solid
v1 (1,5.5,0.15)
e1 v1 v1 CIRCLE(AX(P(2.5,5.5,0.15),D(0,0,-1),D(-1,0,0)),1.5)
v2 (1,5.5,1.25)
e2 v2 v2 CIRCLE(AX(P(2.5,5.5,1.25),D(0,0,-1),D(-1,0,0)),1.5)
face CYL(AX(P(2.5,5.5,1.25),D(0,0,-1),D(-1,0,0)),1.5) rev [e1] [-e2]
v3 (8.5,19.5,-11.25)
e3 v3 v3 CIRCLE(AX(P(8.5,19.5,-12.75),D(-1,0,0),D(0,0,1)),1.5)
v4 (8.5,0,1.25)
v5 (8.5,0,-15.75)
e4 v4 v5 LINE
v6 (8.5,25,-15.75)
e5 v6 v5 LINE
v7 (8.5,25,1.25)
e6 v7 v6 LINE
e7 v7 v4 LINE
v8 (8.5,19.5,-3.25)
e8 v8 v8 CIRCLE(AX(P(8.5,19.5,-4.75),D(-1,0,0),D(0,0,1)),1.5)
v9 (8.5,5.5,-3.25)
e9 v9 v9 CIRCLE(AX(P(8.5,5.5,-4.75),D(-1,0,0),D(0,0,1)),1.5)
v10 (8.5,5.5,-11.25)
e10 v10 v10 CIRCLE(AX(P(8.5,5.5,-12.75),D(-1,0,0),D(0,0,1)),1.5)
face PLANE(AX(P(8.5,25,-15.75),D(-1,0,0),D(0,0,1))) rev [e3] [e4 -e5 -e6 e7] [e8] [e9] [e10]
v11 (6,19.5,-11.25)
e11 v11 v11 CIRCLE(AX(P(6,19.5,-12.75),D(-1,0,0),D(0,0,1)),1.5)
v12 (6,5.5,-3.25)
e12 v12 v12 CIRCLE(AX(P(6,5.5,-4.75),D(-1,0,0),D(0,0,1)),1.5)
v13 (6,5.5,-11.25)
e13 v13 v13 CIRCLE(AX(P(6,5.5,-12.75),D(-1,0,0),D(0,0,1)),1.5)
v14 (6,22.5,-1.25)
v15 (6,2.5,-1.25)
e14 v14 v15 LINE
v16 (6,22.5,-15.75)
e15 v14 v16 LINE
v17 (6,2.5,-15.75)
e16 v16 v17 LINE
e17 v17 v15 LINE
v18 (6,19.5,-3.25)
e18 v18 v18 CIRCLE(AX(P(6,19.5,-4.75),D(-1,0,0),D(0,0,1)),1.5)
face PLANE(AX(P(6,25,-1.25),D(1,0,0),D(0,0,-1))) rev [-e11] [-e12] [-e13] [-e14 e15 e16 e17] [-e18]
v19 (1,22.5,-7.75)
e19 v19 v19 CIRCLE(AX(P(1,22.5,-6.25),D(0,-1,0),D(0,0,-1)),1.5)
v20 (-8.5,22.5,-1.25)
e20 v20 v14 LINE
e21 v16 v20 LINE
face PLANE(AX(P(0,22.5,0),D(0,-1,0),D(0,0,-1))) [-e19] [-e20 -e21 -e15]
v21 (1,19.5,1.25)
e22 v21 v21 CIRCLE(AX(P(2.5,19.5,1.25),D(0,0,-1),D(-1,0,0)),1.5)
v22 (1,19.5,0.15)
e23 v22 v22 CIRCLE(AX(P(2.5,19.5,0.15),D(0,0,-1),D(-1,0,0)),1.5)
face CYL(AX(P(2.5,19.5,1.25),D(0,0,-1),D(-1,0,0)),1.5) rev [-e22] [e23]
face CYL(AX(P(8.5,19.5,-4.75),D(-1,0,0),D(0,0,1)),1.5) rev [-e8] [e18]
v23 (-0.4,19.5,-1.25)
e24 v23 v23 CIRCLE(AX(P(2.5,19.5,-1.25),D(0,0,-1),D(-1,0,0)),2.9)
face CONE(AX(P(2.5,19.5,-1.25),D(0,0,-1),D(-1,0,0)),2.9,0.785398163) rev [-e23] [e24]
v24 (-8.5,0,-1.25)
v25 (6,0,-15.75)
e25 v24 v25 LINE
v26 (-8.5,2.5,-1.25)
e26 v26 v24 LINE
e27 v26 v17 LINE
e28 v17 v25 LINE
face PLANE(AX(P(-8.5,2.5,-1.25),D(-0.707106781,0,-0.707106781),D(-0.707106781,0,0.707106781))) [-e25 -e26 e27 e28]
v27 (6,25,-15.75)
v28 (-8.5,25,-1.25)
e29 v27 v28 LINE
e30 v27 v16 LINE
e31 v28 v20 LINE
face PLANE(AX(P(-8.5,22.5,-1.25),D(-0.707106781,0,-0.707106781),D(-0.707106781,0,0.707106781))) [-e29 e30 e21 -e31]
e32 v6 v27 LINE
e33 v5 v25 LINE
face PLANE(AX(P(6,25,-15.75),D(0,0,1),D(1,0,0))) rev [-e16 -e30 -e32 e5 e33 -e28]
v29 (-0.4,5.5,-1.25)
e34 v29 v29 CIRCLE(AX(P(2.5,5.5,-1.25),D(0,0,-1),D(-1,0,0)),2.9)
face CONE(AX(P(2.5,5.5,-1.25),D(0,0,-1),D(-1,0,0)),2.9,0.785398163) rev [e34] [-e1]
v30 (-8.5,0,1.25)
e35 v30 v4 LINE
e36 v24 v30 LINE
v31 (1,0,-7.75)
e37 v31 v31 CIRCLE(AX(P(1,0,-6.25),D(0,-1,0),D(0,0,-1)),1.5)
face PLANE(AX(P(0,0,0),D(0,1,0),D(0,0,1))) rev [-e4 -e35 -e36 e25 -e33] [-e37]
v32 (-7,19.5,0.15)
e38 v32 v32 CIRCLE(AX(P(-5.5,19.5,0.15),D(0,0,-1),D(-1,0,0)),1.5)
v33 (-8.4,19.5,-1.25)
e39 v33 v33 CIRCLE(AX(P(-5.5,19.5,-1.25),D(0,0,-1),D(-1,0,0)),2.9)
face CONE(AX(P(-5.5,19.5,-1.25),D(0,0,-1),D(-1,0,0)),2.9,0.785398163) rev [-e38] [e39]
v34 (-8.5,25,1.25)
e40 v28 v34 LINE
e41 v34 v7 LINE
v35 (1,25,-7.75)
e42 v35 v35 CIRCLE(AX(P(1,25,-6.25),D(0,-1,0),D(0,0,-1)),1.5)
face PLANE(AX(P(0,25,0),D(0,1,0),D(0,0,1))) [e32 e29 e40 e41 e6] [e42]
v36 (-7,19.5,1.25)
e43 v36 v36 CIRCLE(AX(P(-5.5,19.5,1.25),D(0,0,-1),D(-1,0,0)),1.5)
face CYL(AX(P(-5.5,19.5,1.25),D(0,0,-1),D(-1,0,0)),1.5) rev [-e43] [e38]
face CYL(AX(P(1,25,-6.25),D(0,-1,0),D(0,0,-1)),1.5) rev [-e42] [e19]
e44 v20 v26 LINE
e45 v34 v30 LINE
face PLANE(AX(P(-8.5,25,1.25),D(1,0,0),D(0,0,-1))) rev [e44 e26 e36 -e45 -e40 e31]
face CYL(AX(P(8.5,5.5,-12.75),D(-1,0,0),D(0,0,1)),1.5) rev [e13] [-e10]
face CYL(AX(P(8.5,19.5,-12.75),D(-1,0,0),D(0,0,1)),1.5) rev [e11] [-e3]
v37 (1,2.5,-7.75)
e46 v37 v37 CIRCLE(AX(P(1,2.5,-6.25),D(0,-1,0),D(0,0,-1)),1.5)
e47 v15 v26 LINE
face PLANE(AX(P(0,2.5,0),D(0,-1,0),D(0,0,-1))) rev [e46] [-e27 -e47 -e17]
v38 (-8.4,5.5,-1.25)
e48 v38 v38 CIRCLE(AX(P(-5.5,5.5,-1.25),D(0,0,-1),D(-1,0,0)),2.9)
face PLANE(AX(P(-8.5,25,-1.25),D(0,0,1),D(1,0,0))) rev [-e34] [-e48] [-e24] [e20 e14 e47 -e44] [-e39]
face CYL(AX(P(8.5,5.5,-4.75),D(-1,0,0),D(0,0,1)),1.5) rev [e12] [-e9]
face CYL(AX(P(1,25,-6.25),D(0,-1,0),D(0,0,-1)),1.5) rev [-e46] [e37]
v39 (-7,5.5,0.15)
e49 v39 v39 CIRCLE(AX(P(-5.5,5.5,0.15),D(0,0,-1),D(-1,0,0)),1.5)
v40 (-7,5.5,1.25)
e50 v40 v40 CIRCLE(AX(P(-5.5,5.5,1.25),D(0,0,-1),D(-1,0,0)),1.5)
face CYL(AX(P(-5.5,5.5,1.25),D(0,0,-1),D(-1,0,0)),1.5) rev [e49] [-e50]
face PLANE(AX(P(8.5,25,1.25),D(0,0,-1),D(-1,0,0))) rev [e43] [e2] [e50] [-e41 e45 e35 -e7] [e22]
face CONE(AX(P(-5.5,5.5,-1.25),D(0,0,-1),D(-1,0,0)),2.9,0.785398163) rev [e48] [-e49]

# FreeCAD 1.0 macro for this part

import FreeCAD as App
import Part
import Sketcher
Q = App.Units.Quantity

doc = App.newDocument("Part")
body = doc.addObject("PartDesign::Body", "Body")

sketch1 = body.newObject("Sketcher::SketchObject", "Sketch")
sketch1.AttachmentSupport = (doc.getObject("XZ_Plane"), [""])
sketch1.MapMode = "FlatFace"
sketch1.addGeometry([
    Part.LineSegment(App.Vector(6, -15.8, 0), App.Vector(6, -1.2, 0)),
    Part.LineSegment(App.Vector(6, -1.2, 0), App.Vector(-8.5, -1.2, 0)),
    Part.LineSegment(App.Vector(-8.5, -1.2, 0), App.Vector(-8.5, 1.2, 0)),
    Part.LineSegment(App.Vector(-8.5, 1.2, 0), App.Vector(8.5, 1.2, 0)),
    Part.LineSegment(App.Vector(8.5, 1.2, 0), App.Vector(8.5, -15.8, 0)),
    Part.LineSegment(App.Vector(8.5, -15.8, 0), App.Vector(6, -15.8, 0)),
], False)
sketch1.addConstraint([
    Sketcher.Constraint("Coincident", 0, 2, 1, 1),
    Sketcher.Constraint("Coincident", 1, 2, 2, 1),
    Sketcher.Constraint("Coincident", 2, 2, 3, 1),
    Sketcher.Constraint("Coincident", 3, 2, 4, 1),
    Sketcher.Constraint("Coincident", 4, 2, 5, 1),
    Sketcher.Constraint("Coincident", 5, 2, 0, 1),
    Sketcher.Constraint("Vertical", 0),
    Sketcher.Constraint("Horizontal", 1),
    Sketcher.Constraint("Vertical", 2),
    Sketcher.Constraint("Horizontal", 3),
    Sketcher.Constraint("Vertical", 4),
    Sketcher.Constraint("Horizontal", 5),
    Sketcher.Constraint("Symmetric", 1, 2, 3, 2, -1, 1),
    Sketcher.Constraint("Equal", 1, 0),
    Sketcher.Constraint("Equal", 5, 2),
    Sketcher.Constraint("DistanceX", 3, 1, 3, 2, Q("17 mm")),
    Sketcher.Constraint("DistanceX", 1, 2, 1, 1, Q("14.5 mm")),
])
pad1 = body.newObject("PartDesign::Pad", "Pad")
pad1.Profile = sketch1
pad1.Length = 25
pad1.Reversed = True

sketch2 = body.newObject("Sketcher::SketchObject", "Sketch001")
sketch2.AttachmentSupport = (doc.getObject("XZ_Plane"), [""])
sketch2.MapMode = "FlatFace"
sketch2.addGeometry([
    Part.LineSegment(App.Vector(6, -16, 0), App.Vector(6, -1, 0)),
    Part.LineSegment(App.Vector(6, -1, 0), App.Vector(-8, -1, 0)),
    Part.LineSegment(App.Vector(-8, -1, 0), App.Vector(6, -16, 0)),
], False)
sketch2.addConstraint([
    Sketcher.Constraint("Coincident", 0, 2, 1, 1),
    Sketcher.Constraint("Coincident", 1, 2, 2, 1),
    Sketcher.Constraint("Coincident", 2, 2, 0, 1),
    Sketcher.Constraint("Vertical", 0),
    Sketcher.Constraint("Horizontal", 1),
    Sketcher.Constraint("Equal", 1, 0),
    Sketcher.Constraint("DistanceX", 1, 2, 1, 1, Q("14.5 mm")),
    Sketcher.Constraint("DistanceX", -1, 1, 0, 2, Q("6 mm")),
    Sketcher.Constraint("DistanceY", 0, 2, -1, 1, Q("1.25 mm")),
])
pad2 = body.newObject("PartDesign::Pad", "Pad001")
pad2.Profile = sketch2
pad2.Length = 2.5
pad2.Reversed = True

sketch3 = body.newObject("Sketcher::SketchObject", "Sketch002")
sketch3.AttachmentSupport = (doc.getObject("XZ_Plane"), [""])
sketch3.MapMode = "FlatFace"
sketch3.AttachmentOffset = App.Placement(App.Vector(0, 0, -25), App.Rotation())
sketch3.addGeometry([
    Part.LineSegment(App.Vector(6, -1, 0), App.Vector(6, -16, 0)),
    Part.LineSegment(App.Vector(6, -16, 0), App.Vector(-8, -1, 0)),
    Part.LineSegment(App.Vector(-8, -1, 0), App.Vector(6, -1, 0)),
], False)
sketch3.addConstraint([
    Sketcher.Constraint("Coincident", 0, 2, 1, 1),
    Sketcher.Constraint("Coincident", 1, 2, 2, 1),
    Sketcher.Constraint("Coincident", 2, 2, 0, 1),
    Sketcher.Constraint("Vertical", 0),
    Sketcher.Constraint("Horizontal", 2),
    Sketcher.Constraint("Equal", 2, 0),
    Sketcher.Constraint("DistanceX", 2, 1, 2, 2, Q("14.5 mm")),
    Sketcher.Constraint("DistanceX", -1, 1, 0, 2, Q("6 mm")),
    Sketcher.Constraint("DistanceY", 0, 2, -1, 1, Q("15.75 mm")),
])
pad3 = body.newObject("PartDesign::Pad", "Pad002")
pad3.Profile = sketch3
pad3.Length = 2.5

sketch4 = body.newObject("Sketcher::SketchObject", "Sketch003")
sketch4.AttachmentSupport = (doc.getObject("XY_Plane"), [""])
sketch4.MapMode = "FlatFace"
sketch4.AttachmentOffset = App.Placement(App.Vector(0, 0, -1.25), App.Rotation())
sketch4.addGeometry([
    Part.Circle(App.Vector(2.5, 19.5, 0), App.Vector(0, 0, 1), 1.5),
    Part.Circle(App.Vector(-5.5, 19.5, 0), App.Vector(0, 0, 1), 1.5),
    Part.Circle(App.Vector(-5.5, 5.5, 0), App.Vector(0, 0, 1), 1.5),
    Part.Circle(App.Vector(2.5, 5.5, 0), App.Vector(0, 0, 1), 1.5),
], False)
sketch4.addConstraint([
    Sketcher.Constraint("Equal", 0, 1),
    Sketcher.Constraint("Equal", 1, 2),
    Sketcher.Constraint("Equal", 2, 3),
    Sketcher.Constraint("Horizontal", 0, 3, 1, 3),
    Sketcher.Constraint("Horizontal", 2, 3, 3, 3),
    Sketcher.Constraint("Vertical", 1, 3, 2, 3),
    Sketcher.Constraint("Vertical", 0, 3, 3, 3),
    Sketcher.Constraint("Diameter", 0, Q("3 mm")),
    Sketcher.Constraint("DistanceX", 1, 3, 0, 3, Q("8 mm")),
    Sketcher.Constraint("DistanceY", 2, 3, 1, 3, Q("14 mm")),
    Sketcher.Constraint("DistanceX", -1, 1, 0, 3, Q("2.5 mm")),
    Sketcher.Constraint("DistanceY", -1, 1, 0, 3, Q("19.5 mm")),
])
pocket1 = body.newObject("PartDesign::Pocket", "Pocket")
pocket1.Profile = sketch4
pocket1.Type = "ThroughAll"
pocket1.Reversed = True

sketch5 = body.newObject("Sketcher::SketchObject", "Sketch004")
sketch5.AttachmentSupport = (doc.getObject("YZ_Plane"), [""])
sketch5.MapMode = "FlatFace"
sketch5.AttachmentOffset = App.Placement(App.Vector(0, 0, 6), App.Rotation())
sketch5.addGeometry([
    Part.Circle(App.Vector(19.5, -12.8, 0), App.Vector(0, 0, 1), 1.5),
    Part.Circle(App.Vector(5.5, -12.8, 0), App.Vector(0, 0, 1), 1.5),
    Part.Circle(App.Vector(19.5, -4.8, 0), App.Vector(0, 0, 1), 1.5),
    Part.Circle(App.Vector(5.5, -4.8, 0), App.Vector(0, 0, 1), 1.5),
], False)
sketch5.addConstraint([
    Sketcher.Constraint("Equal", 0, 1),
    Sketcher.Constraint("Equal", 1, 2),
    Sketcher.Constraint("Equal", 2, 3),
    Sketcher.Constraint("Horizontal", 0, 3, 1, 3),
    Sketcher.Constraint("Horizontal", 2, 3, 3, 3),
    Sketcher.Constraint("Vertical", 0, 3, 2, 3),
    Sketcher.Constraint("Vertical", 1, 3, 3, 3),
    Sketcher.Constraint("Diameter", 0, Q("3 mm")),
    Sketcher.Constraint("DistanceX", 1, 3, 0, 3, Q("14 mm")),
    Sketcher.Constraint("DistanceY", 0, 3, 2, 3, Q("8 mm")),
    Sketcher.Constraint("DistanceX", -1, 1, 0, 3, Q("19.5 mm")),
    Sketcher.Constraint("DistanceY", 0, 3, -1, 1, Q("12.75 mm")),
])
pocket2 = body.newObject("PartDesign::Pocket", "Pocket001")
pocket2.Profile = sketch5
pocket2.Type = "ThroughAll"
pocket2.Reversed = True

sketch6 = body.newObject("Sketcher::SketchObject", "Sketch005")
sketch6.AttachmentSupport = (doc.getObject("XZ_Plane"), [""])
sketch6.MapMode = "FlatFace"
sketch6.addGeometry(Part.Circle(App.Vector(1, -6.2, 0), App.Vector(0, 0, 1), 1.5), False)
sketch6.addConstraint([
    Sketcher.Constraint("Diameter", 0, Q("3 mm")),
    Sketcher.Constraint("DistanceX", -1, 1, 0, 3, Q("1 mm")),
    Sketcher.Constraint("DistanceY", 0, 3, -1, 1, Q("6.25 mm")),
])
pocket3 = body.newObject("PartDesign::Pocket", "Pocket002")
pocket3.Profile = sketch6
pocket3.Type = "ThroughAll"

sketch7 = body.newObject("Sketcher::SketchObject", "Sketch006")
sketch7.AttachmentSupport = (doc.getObject("YZ_Plane"), [""])
sketch7.MapMode = "FlatFace"
sketch7.AttachmentOffset = App.Placement(App.Vector(0, 0, -5.5), App.Rotation())
sketch7.addGeometry([
    Part.LineSegment(App.Vector(5.5, 1.2, 0), App.Vector(5.5, -1.2, 0)),
    Part.LineSegment(App.Vector(5.5, -1.2, 0), App.Vector(8.4, -1.2, 0)),
    Part.LineSegment(App.Vector(8.4, -1.2, 0), App.Vector(7, 0.1, 0)),
    Part.LineSegment(App.Vector(7, 0.1, 0), App.Vector(7, 1.2, 0)),
    Part.LineSegment(App.Vector(7, 1.2, 0), App.Vector(5.5, 1.2, 0)),
], False)
sketch7.addGeometry(Part.LineSegment(App.Vector(5.5, -1.2, 0), App.Vector(5.5, 1.2, 0)), True)
sketch7.addConstraint([
    Sketcher.Constraint("Coincident", 0, 2, 1, 1),
    Sketcher.Constraint("Coincident", 1, 2, 2, 1),
    Sketcher.Constraint("Coincident", 2, 2, 3, 1),
    Sketcher.Constraint("Coincident", 3, 2, 4, 1),
    Sketcher.Constraint("Coincident", 4, 2, 0, 1),
    Sketcher.Constraint("Vertical", 0),
    Sketcher.Constraint("Horizontal", 1),
    Sketcher.Constraint("Vertical", 3),
    Sketcher.Constraint("Horizontal", 4),
    Sketcher.Constraint("Vertical", 5),
    Sketcher.Constraint("Coincident", 5, 1, 0, 2),
    Sketcher.Constraint("Horizontal", 3, 2, 5, 2),
    Sketcher.Constraint("Angle", 2, Q("135 deg")),
    Sketcher.Constraint("DistanceX", 1, 1, 1, 2, Q("2.9 mm")),
    Sketcher.Constraint("DistanceX", 4, 2, 4, 1, Q("1.5 mm")),
    Sketcher.Constraint("DistanceY", 0, 2, 0, 1, Q("2.5 mm")),
    Sketcher.Constraint("DistanceX", -1, 1, 2, 2, Q("7 mm")),
    Sketcher.Constraint("DistanceY", 0, 2, -1, 1, Q("1.25 mm")),
])
groove = body.newObject("PartDesign::Groove", "Groove")
groove.Profile = sketch7
groove.ReferenceAxis = (sketch7, ["Axis0"])
groove.Angle = 360
doc.recompute()

linearpattern = body.newObject("PartDesign::LinearPattern", "LinearPattern")
linearpattern.Originals = [groove]
linearpattern.Direction = (doc.getObject("X_Axis"), [""])
linearpattern.Mode = "offset"
linearpattern.Offset = 8
linearpattern.Occurrences = 2
body.Tip = linearpattern
doc.recompute()

datumline = body.newObject("PartDesign::Line", "DatumLine")
datumline.Placement = App.Placement(App.Vector(0, 0, 0), App.Rotation(App.Vector(0, 0, 1), App.Vector(0.496138938, 0.868243142, 0)))
linearpattern2 = body.newObject("PartDesign::LinearPattern", "LinearPattern001")
linearpattern2.Originals = [groove]
linearpattern2.Direction = (datumline, [""])
linearpattern2.Mode = "offset"
linearpattern2.Offset = 16.124515
linearpattern2.Occurrences = 2
body.Tip = linearpattern2
doc.recompute()

linearpattern3 = body.newObject("PartDesign::LinearPattern", "LinearPattern002")
linearpattern3.Originals = [groove]
linearpattern3.Direction = (doc.getObject("Y_Axis"), [""])
linearpattern3.Mode = "offset"
linearpattern3.Offset = 14
linearpattern3.Occurrences = 2
body.Tip = linearpattern3

doc.recompute()
